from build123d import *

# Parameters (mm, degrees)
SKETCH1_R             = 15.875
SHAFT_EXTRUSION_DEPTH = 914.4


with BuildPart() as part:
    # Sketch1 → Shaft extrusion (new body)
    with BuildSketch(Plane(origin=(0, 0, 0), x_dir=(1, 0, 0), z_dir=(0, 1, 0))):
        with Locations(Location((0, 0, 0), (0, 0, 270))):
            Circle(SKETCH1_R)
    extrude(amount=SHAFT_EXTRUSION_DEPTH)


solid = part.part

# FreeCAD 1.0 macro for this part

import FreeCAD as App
import Part
import Sketcher

V = App.Vector
Q = App.Units.Quantity

doc = App.newDocument("Part")
body = doc.addObject("PartDesign::Body", "Body")

# Sketch on XZ plane
sketch1 = body.newObject("Sketcher::SketchObject", "Sketch")
sketch1.AttachmentSupport = (doc.getObject("XZ_Plane"), [""])
sketch1.MapMode = "FlatFace"
sketch1.addGeometry(Part.Circle(V(0, 0, 0), V(0, 0, 1), 15.875), False)
sketch1.addConstraint([
    Sketcher.Constraint("Coincident", 0, 3, -1, 1),
    Sketcher.Constraint("Diameter", 0, Q("1.25 in")),
])
pad1 = body.newObject("PartDesign::Pad", "Pad")
pad1.Profile = sketch1
pad1.Length = Q("36 in")
pad1.Reversed = True

doc.recompute()
